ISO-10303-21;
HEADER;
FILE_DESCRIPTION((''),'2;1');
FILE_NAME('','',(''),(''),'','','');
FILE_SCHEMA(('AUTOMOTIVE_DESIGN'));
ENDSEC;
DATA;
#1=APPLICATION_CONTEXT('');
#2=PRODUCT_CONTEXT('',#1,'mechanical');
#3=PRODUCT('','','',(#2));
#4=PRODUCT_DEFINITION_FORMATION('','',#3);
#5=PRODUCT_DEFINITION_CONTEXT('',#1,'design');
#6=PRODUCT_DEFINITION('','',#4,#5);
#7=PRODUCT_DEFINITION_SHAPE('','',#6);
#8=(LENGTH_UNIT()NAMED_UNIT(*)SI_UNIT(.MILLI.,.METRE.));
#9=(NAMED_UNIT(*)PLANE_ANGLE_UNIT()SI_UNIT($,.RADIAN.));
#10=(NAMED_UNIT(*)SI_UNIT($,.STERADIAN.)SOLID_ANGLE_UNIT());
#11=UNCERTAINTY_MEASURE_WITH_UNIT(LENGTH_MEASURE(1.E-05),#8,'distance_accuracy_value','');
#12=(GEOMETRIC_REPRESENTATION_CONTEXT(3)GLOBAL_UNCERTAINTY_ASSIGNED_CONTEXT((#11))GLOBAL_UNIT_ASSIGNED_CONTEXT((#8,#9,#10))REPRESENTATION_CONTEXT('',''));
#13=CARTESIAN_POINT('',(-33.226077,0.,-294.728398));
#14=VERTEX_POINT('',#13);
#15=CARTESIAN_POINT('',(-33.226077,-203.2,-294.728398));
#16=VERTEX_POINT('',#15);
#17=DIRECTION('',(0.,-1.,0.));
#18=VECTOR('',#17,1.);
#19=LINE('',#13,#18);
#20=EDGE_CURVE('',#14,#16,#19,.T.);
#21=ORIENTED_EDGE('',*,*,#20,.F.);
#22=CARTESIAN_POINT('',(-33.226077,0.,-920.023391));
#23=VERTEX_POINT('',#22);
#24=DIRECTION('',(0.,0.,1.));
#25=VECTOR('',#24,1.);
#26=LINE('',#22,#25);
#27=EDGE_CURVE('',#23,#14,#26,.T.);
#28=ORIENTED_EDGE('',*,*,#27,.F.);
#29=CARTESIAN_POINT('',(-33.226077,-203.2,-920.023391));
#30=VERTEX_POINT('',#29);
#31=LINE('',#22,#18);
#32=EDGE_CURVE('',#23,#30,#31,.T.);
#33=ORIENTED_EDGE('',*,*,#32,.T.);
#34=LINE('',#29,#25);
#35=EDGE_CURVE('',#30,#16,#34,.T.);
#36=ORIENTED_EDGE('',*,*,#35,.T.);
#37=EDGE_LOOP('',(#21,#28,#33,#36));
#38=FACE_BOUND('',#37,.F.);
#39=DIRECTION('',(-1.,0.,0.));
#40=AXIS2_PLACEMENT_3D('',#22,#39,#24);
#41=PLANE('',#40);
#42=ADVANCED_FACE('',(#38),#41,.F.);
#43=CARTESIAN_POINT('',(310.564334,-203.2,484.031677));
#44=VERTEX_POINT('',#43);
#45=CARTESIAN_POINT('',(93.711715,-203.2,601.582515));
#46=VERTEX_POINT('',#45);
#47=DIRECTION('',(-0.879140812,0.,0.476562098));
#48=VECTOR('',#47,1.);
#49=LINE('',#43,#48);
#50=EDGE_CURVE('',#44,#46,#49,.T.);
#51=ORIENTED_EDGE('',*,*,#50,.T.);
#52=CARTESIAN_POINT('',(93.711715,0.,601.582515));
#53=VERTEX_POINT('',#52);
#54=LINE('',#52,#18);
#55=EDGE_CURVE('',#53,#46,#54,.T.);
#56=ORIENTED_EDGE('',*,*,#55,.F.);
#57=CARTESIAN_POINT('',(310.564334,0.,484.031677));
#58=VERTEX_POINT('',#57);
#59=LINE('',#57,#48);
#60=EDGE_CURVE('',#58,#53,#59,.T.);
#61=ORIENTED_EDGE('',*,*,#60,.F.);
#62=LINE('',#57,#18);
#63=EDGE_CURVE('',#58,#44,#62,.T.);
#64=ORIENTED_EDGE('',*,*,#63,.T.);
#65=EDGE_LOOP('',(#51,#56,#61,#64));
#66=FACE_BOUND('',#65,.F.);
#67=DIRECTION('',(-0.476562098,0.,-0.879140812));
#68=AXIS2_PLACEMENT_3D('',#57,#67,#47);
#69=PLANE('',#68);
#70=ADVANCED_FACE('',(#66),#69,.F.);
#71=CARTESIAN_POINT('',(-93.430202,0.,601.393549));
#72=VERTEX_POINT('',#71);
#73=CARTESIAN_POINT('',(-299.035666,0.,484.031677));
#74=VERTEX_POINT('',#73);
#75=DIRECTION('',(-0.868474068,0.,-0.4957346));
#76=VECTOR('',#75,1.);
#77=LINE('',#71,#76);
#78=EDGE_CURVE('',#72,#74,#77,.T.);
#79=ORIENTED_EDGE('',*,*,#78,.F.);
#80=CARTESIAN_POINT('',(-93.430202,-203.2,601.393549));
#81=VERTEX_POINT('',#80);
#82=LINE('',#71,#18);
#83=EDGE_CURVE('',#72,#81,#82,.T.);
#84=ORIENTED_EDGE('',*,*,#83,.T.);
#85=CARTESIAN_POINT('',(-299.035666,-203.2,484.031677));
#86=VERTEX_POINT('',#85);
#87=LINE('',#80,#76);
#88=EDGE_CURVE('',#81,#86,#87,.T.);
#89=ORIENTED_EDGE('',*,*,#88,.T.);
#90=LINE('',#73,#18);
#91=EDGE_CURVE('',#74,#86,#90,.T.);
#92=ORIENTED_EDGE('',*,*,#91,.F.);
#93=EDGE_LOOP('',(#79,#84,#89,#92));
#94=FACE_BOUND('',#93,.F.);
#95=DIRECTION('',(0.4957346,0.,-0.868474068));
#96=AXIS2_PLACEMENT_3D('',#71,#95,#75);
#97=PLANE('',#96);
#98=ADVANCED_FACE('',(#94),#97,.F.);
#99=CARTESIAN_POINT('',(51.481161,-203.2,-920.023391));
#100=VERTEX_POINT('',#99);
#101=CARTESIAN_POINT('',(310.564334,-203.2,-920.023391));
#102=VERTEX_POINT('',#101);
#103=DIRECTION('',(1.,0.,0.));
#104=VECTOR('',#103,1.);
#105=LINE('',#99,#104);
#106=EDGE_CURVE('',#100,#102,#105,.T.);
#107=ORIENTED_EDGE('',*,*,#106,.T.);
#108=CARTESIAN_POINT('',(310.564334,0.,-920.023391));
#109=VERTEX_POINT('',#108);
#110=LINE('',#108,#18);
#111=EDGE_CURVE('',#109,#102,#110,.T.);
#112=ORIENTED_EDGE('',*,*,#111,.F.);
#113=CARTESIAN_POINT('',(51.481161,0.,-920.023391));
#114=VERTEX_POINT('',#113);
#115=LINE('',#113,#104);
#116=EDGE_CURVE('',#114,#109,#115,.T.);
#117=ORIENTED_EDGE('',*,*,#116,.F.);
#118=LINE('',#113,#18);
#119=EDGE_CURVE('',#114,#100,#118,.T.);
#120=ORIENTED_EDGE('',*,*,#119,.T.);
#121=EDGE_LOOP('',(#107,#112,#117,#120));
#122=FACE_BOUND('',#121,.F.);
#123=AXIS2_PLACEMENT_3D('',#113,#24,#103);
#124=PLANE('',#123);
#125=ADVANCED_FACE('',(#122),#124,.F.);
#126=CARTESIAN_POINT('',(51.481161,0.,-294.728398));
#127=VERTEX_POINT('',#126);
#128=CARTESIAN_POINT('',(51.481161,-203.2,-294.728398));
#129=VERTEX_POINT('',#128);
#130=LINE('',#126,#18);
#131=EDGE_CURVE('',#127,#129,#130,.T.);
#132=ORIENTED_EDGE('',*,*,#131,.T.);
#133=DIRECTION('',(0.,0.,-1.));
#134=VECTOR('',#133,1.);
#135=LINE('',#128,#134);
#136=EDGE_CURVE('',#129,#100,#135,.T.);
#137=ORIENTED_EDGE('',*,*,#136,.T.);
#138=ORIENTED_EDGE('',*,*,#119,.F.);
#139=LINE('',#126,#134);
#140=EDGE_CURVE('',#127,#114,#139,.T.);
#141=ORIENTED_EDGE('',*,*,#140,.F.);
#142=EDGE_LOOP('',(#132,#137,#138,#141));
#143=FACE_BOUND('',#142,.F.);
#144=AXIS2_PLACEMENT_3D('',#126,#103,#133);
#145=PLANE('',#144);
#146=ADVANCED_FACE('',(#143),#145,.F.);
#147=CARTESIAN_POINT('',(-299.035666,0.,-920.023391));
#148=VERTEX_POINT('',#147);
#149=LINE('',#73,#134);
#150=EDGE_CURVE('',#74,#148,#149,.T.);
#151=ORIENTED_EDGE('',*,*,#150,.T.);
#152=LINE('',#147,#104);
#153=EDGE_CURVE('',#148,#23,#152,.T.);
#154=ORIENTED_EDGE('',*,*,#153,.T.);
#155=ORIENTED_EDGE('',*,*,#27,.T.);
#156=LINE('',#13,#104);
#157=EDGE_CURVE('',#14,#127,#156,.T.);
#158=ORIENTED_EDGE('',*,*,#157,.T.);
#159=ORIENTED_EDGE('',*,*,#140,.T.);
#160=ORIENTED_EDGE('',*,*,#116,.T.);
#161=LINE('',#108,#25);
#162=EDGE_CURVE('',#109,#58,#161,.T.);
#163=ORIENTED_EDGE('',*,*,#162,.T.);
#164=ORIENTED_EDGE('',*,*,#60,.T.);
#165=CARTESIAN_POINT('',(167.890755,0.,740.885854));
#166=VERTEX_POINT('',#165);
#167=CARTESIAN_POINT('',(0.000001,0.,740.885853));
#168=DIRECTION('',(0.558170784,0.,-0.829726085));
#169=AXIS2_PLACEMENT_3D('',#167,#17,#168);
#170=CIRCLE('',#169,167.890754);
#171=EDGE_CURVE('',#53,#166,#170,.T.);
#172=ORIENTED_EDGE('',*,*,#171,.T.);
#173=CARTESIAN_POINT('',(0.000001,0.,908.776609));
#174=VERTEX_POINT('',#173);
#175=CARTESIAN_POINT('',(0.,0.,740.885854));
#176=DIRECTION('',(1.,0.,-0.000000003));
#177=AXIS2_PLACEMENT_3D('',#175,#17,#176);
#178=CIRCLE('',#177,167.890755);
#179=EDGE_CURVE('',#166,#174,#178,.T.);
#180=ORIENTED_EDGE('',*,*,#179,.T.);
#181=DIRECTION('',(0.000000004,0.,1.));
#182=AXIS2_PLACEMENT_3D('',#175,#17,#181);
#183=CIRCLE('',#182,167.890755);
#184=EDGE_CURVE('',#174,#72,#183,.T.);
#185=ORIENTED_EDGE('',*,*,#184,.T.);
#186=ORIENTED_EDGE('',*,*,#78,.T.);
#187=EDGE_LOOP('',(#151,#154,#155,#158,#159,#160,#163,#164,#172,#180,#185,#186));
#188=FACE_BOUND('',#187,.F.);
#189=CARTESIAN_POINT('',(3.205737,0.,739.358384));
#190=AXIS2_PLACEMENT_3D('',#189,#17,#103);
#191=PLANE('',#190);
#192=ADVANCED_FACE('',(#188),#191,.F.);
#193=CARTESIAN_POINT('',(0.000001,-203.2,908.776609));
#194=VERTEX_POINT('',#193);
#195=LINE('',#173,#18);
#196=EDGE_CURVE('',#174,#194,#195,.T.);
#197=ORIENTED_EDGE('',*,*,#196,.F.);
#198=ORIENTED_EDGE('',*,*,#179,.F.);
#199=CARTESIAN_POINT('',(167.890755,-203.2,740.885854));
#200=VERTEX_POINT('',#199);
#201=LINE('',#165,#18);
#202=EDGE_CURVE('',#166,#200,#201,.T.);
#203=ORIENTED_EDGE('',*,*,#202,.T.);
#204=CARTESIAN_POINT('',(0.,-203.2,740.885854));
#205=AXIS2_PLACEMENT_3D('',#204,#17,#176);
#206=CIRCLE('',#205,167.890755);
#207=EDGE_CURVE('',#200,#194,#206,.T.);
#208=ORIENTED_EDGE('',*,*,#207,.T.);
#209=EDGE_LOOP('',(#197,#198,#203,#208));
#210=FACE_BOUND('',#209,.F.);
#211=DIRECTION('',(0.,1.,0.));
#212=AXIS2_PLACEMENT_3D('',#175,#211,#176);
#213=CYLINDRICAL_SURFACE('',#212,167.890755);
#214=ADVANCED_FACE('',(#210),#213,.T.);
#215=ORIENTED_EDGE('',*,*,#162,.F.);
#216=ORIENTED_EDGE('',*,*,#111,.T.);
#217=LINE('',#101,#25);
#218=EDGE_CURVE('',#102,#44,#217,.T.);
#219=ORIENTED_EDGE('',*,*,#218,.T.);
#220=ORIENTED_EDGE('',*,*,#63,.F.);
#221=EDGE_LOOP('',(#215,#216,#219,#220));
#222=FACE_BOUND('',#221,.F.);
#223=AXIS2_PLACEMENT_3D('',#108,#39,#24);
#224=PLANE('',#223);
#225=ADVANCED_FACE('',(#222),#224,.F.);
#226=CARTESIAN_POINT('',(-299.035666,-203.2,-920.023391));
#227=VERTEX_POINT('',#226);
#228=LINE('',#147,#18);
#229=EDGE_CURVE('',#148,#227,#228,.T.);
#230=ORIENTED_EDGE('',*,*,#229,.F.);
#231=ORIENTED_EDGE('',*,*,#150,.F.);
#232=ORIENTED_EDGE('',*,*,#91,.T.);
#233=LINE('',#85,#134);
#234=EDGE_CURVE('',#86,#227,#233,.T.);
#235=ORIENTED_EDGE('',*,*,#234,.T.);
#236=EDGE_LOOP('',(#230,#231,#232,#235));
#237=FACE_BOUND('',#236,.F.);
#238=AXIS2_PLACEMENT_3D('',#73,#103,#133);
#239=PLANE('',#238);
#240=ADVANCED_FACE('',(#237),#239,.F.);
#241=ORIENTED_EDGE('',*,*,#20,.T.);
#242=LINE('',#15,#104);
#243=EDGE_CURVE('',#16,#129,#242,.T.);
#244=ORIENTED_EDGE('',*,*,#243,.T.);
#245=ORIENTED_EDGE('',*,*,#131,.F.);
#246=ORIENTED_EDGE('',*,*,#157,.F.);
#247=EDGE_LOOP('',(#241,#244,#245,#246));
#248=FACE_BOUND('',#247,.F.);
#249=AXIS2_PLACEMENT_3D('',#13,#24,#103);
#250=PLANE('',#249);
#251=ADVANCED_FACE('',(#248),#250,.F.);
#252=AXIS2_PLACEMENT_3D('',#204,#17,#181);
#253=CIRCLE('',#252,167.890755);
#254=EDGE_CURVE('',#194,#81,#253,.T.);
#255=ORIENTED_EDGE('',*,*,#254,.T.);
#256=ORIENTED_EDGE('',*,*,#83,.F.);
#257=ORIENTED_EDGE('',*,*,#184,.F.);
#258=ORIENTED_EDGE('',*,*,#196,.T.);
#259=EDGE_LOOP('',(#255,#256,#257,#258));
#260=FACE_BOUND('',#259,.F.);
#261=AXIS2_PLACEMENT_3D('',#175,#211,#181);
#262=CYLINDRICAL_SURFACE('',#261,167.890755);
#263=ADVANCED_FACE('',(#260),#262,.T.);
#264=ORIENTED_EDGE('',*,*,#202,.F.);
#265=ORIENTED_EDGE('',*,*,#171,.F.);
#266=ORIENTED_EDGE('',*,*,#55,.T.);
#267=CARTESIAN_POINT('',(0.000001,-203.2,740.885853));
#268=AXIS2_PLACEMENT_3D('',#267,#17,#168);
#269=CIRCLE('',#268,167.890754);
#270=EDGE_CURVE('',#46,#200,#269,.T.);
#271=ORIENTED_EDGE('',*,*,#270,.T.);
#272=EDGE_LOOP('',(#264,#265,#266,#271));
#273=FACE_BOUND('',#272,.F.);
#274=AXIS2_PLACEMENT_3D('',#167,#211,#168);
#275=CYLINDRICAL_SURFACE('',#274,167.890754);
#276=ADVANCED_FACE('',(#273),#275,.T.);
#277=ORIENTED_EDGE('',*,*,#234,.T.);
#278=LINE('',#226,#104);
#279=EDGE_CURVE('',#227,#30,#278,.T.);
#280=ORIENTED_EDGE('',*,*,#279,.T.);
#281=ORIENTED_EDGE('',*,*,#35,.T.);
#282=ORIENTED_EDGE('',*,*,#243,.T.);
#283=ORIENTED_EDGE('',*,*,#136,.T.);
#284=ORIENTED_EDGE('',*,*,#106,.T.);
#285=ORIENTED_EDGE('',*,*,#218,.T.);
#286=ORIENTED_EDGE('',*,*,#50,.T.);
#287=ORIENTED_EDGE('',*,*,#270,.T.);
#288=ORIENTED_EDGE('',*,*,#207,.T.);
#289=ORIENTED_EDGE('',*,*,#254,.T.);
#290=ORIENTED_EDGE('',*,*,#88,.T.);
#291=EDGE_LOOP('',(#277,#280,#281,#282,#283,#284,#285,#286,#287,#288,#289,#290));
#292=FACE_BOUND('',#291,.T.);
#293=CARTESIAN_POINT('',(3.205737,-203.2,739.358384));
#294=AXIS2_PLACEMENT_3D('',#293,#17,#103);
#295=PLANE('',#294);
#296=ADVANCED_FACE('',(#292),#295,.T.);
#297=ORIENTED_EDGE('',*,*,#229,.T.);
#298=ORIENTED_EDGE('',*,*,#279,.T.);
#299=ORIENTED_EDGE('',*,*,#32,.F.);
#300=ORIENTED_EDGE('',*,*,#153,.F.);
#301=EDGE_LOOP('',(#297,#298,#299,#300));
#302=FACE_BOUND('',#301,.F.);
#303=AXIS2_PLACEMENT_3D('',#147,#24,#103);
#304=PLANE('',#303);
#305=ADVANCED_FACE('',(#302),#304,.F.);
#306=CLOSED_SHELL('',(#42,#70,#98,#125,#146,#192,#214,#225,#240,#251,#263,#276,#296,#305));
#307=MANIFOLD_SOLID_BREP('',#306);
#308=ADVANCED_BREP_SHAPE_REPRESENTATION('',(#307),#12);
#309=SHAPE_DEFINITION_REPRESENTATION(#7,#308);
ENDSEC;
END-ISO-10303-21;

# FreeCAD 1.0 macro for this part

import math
import FreeCAD as App
import Part
import Sketcher

V = App.Vector
Q = App.Units.Quantity

doc = App.newDocument("Part")
params = doc.addObject("Spreadsheet::Sheet", "Params")
for row, (alias, value) in enumerate([
    ("pad1_length", "8 in"),
], start=1):
    params.set(f"A{row}", alias)
    params.set(f"B{row}", "=" + value)
    params.setAlias(f"B{row}", alias)

body = doc.addObject("PartDesign::Body", "Body")

# Sketch on XZ plane
sketch1 = doc.addObject("Sketcher::SketchObject", "Sketch")
body.addObject(sketch1)
sketch1.AttachmentSupport = (doc.XZ_Plane, [""])
sketch1.MapMode = "FlatFace"
sketch1.addGeometry(Part.ArcOfCircle(Part.Circle(V(0, 740.885854, 0), V(0, 0, 1), 167.890755), math.radians(0), math.radians(90)), False)
sketch1.addGeometry(Part.ArcOfCircle(Part.Circle(V(0, 740.885854, 0), V(0, 0, 1), 167.890755), math.radians(90), math.radians(236.186319)), False)
sketch1.addGeometry(Part.LineSegment(V(-93.430202, 601.393549, 0), V(-299.035666, 484.031677, 0)), False)
sketch1.addGeometry(Part.LineSegment(V(-299.035666, 484.031677, 0), V(-299.035666, -920.023391, 0)), False)
sketch1.addGeometry(Part.LineSegment(V(-299.035666, -920.023391, 0), V(-33.226077, -920.023391, 0)), False)
sketch1.addGeometry(Part.LineSegment(V(-33.226077, -920.023391, 0), V(-33.226077, -294.728398, 0)), False)
sketch1.addGeometry(Part.LineSegment(V(-33.226077, -294.728398, 0), V(51.481161, -294.728398, 0)), False)
sketch1.addGeometry(Part.LineSegment(V(51.481161, -294.728398, 0), V(51.481161, -920.023391, 0)), False)
sketch1.addGeometry(Part.LineSegment(V(51.481161, -920.023391, 0), V(310.564334, -920.023391, 0)), False)
sketch1.addGeometry(Part.LineSegment(V(310.564334, -920.023391, 0), V(310.564334, 484.031677, 0)), False)
sketch1.addGeometry(Part.LineSegment(V(310.564334, 484.031677, 0), V(93.711715, 601.582515, 0)), False)
sketch1.addGeometry(Part.ArcOfCircle(Part.Circle(V(0.000001, 740.885853, 0), V(0, 0, 1), 167.890754), math.radians(-56.070611), math.radians(0)), False)
sketch1.addConstraint(Sketcher.Constraint("Tangent", 0, 2, 1, 1))
sketch1.addConstraint(Sketcher.Constraint("Coincident", 1, 2, 2, 1))
sketch1.addConstraint(Sketcher.Constraint("Coincident", 2, 2, 3, 1))
sketch1.addConstraint(Sketcher.Constraint("Coincident", 3, 2, 4, 1))
sketch1.addConstraint(Sketcher.Constraint("Coincident", 4, 2, 5, 1))
sketch1.addConstraint(Sketcher.Constraint("Coincident", 5, 2, 6, 1))
sketch1.addConstraint(Sketcher.Constraint("Coincident", 6, 2, 7, 1))
sketch1.addConstraint(Sketcher.Constraint("Coincident", 7, 2, 8, 1))
sketch1.addConstraint(Sketcher.Constraint("Coincident", 8, 2, 9, 1))
sketch1.addConstraint(Sketcher.Constraint("Coincident", 9, 2, 10, 1))
sketch1.addConstraint(Sketcher.Constraint("Coincident", 10, 2, 11, 1))
sketch1.addConstraint(Sketcher.Constraint("Tangent", 11, 2, 0, 1))
sketch1.addConstraint(Sketcher.Constraint("Vertical", 3))
sketch1.addConstraint(Sketcher.Constraint("Horizontal", 4))
sketch1.addConstraint(Sketcher.Constraint("Vertical", 5))
sketch1.addConstraint(Sketcher.Constraint("Horizontal", 6))
sketch1.addConstraint(Sketcher.Constraint("Vertical", 7))
sketch1.addConstraint(Sketcher.Constraint("Horizontal", 8))
sketch1.addConstraint(Sketcher.Constraint("Vertical", 9))
sketch1.addConstraint(Sketcher.Constraint("Equal", 0, 1))
sketch1.addConstraint(Sketcher.Constraint("Equal", 1, 11))
sketch1.addConstraint(Sketcher.Constraint("PointOnObject", 0, 3, -2))
sketch1.addConstraint(Sketcher.Constraint("PointOnObject", 0, 2, -2))
sketch1.addConstraint(Sketcher.Constraint("Horizontal", 4, 2, 7, 2))
sketch1.addConstraint(Sketcher.Constraint("Horizontal", 2, 2, 9, 2))
sketch1.addConstraint(Sketcher.Constraint("Horizontal", 1, 3, 11, 2))
sketch1.addConstraint(Sketcher.Constraint("DistanceX", 3, 2, 8, 2, Q("24 in")))
sketch1.addConstraint(Sketcher.Constraint("Radius", 0, Q("167.890755 mm")))
sketch1.addConstraint(Sketcher.Constraint("DistanceX", 4, 1, 4, 2, Q("265.809589 mm")))
sketch1.addConstraint(Sketcher.Constraint("DistanceY", 3, 2, 3, 1, Q("1404.055068 mm")))
sketch1.addConstraint(Sketcher.Constraint("DistanceY", 5, 2, -1, 1, Q("294.728398 mm")))
sketch1.addConstraint(Sketcher.Constraint("Distance", 10, Q("246.664261 mm")))
sketch1.addConstraint(Sketcher.Constraint("DistanceX", 6, 1, 6, 2, Q("84.707238 mm")))
sketch1.addConstraint(Sketcher.Constraint("DistanceY", 5, 1, 5, 2, Q("625.294993 mm")))
sketch1.addConstraint(Sketcher.Constraint("DistanceY", -1, 1, 0, 2, Q("908.776609 mm")))
sketch1.addConstraint(Sketcher.Constraint("DistanceY", -1, 1, 1, 2, Q("601.393549 mm")))
sketch1.addConstraint(Sketcher.Constraint("DistanceX", -1, 1, 6, 2, Q("51.481161 mm")))
pad1 = doc.addObject("PartDesign::Pad", "Pad")
body.addObject(pad1)
pad1.Profile = sketch1
pad1.setExpression("Length", "Params.pad1_length")

doc.recompute()
